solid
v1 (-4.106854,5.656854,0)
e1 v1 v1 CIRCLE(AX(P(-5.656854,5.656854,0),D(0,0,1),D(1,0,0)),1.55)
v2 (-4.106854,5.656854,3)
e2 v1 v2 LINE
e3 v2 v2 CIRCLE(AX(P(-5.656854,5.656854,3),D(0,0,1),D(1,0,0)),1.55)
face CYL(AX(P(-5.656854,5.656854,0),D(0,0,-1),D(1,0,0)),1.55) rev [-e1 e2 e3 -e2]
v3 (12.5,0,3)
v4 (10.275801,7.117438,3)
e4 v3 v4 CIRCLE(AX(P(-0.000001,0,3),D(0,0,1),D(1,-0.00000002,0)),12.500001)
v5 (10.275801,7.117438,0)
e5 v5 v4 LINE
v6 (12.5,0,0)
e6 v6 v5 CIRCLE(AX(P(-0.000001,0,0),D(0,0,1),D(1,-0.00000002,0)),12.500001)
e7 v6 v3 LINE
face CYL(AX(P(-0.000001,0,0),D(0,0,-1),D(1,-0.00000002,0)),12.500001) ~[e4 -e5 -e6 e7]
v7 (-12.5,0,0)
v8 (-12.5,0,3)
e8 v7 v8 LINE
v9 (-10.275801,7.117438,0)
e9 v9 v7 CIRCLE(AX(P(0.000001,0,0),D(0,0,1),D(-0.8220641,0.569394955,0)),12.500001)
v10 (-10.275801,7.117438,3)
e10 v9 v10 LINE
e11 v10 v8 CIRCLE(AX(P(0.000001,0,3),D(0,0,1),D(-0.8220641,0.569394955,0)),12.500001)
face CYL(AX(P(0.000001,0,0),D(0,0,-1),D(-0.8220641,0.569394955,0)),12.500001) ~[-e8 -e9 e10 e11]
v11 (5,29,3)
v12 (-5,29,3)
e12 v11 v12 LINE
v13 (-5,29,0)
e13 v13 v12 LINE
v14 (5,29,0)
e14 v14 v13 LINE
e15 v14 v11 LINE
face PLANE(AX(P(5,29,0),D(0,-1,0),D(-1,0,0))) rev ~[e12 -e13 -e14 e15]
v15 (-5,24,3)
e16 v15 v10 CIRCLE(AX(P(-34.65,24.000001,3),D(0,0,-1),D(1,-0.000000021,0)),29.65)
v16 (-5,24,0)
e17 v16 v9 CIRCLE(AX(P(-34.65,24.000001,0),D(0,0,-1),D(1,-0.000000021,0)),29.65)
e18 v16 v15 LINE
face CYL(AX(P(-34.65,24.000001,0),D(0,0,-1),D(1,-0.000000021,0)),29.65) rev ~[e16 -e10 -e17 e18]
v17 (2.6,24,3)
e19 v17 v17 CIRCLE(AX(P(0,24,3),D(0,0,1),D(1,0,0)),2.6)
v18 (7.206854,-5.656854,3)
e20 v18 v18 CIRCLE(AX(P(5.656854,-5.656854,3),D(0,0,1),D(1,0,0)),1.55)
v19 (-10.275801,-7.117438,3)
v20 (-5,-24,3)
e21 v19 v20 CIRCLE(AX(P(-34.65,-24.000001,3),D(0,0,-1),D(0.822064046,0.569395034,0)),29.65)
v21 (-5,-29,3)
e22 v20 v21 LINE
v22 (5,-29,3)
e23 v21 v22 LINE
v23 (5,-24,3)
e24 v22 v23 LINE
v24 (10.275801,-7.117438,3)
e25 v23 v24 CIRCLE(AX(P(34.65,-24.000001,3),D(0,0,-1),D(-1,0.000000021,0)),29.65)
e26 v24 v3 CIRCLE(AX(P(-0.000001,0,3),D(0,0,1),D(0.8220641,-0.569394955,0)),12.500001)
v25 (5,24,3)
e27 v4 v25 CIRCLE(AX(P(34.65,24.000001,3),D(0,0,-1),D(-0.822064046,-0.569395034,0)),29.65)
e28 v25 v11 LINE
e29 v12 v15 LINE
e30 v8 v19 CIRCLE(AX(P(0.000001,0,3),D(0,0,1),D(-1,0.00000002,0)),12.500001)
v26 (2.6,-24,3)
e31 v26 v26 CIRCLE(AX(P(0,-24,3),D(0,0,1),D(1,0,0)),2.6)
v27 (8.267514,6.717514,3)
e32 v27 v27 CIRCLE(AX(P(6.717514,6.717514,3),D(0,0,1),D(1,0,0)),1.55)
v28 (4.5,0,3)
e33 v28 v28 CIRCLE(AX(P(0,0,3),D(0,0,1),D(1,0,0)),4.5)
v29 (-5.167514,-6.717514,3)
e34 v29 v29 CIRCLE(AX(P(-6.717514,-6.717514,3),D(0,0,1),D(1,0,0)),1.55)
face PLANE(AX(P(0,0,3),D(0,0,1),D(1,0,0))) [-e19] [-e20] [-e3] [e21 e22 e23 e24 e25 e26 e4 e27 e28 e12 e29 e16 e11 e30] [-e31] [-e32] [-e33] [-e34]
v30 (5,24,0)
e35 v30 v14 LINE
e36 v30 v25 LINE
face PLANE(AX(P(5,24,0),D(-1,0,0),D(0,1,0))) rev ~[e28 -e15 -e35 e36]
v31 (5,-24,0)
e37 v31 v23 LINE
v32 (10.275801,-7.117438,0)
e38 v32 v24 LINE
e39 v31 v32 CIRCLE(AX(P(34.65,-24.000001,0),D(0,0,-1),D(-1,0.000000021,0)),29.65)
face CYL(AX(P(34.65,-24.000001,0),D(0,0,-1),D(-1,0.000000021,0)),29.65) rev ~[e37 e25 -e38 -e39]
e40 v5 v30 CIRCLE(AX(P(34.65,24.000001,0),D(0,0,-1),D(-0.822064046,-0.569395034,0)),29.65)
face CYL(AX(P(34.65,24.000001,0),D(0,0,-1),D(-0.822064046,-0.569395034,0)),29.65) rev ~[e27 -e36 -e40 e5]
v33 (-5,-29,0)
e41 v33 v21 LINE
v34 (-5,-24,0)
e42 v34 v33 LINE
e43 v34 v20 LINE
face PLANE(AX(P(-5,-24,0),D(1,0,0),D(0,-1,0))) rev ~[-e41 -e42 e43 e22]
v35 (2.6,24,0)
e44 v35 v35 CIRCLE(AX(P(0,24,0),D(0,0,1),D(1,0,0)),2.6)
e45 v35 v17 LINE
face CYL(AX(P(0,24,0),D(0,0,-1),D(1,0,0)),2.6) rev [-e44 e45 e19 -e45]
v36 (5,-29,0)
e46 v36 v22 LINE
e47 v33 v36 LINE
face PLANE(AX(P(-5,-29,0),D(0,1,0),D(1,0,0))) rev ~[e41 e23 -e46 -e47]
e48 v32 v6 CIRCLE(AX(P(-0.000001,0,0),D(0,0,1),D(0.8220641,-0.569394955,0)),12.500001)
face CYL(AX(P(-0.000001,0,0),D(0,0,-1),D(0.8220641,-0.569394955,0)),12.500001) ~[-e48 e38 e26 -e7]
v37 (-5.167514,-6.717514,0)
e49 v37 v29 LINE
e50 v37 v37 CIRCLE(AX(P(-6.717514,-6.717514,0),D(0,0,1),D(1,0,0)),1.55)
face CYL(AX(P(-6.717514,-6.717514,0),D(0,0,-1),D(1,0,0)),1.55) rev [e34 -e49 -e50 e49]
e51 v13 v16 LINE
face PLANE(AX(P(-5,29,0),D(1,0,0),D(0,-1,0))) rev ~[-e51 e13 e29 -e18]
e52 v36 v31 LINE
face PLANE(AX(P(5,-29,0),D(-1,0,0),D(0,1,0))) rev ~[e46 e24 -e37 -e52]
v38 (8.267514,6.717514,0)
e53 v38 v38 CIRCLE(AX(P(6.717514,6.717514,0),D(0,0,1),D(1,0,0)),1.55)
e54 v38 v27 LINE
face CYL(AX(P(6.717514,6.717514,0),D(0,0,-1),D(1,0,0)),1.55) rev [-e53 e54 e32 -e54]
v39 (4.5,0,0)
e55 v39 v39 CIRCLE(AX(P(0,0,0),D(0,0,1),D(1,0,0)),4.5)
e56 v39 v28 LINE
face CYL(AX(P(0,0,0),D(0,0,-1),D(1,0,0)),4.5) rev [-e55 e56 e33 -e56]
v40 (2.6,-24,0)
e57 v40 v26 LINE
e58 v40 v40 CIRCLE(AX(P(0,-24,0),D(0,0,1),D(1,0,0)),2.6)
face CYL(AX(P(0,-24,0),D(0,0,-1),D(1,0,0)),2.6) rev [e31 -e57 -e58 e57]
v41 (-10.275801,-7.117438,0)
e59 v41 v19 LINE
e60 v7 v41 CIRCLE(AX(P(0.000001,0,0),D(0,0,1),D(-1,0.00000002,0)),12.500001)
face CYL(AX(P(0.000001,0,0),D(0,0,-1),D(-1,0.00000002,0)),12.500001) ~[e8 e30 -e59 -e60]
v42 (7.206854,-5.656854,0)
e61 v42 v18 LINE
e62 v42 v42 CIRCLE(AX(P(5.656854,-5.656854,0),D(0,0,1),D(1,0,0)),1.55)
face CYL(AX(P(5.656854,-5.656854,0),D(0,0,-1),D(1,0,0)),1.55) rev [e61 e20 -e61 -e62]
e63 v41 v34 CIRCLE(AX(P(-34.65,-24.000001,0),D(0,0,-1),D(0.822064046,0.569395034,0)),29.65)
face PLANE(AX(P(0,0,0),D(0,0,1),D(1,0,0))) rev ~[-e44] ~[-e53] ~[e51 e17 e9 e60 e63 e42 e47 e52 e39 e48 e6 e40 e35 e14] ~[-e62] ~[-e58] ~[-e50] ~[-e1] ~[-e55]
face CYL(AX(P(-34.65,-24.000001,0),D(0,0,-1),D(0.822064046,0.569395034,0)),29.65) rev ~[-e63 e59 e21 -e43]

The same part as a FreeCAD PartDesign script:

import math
import FreeCAD as App
import Part
import Sketcher

doc = App.newDocument("Part")
body = doc.addObject("PartDesign::Body", "Body")

# Sketch on XY plane
sketch1 = body.newObject("Sketcher::SketchObject", "Sketch")
sketch1.AttachmentSupport = (doc.getObject("XY_Plane"), [""])
sketch1.MapMode = "FlatFace"
sketch1.addGeometry(Part.ArcOfCircle(Part.Circle(App.Vector(-34.6, 24, 0), App.Vector(0, 0, 1), 29.6), math.radians(-35), math.radians(0)), False)
sketch1.addGeometry(Part.ArcOfCircle(Part.Circle(App.Vector(0, 0, 0), App.Vector(0, 0, 1), 12.5), math.radians(145), math.radians(180)), False)
sketch1.addGeometry(Part.ArcOfCircle(Part.Circle(App.Vector(0, 0, 0), App.Vector(0, 0, 1), 12.5), math.radians(180), math.radians(215)), False)
sketch1.addGeometry(Part.ArcOfCircle(Part.Circle(App.Vector(-34.6, -24, 0), App.Vector(0, 0, 1), 29.6), math.radians(0), math.radians(35)), False)
sketch1.addGeometry(Part.LineSegment(App.Vector(-5, -24, 0), App.Vector(-5, -29, 0)), False)
sketch1.addGeometry(Part.LineSegment(App.Vector(-5, -29, 0), App.Vector(5, -29, 0)), False)
sketch1.addGeometry(Part.LineSegment(App.Vector(5, -29, 0), App.Vector(5, -24, 0)), False)
sketch1.addGeometry(Part.ArcOfCircle(Part.Circle(App.Vector(34.6, -24, 0), App.Vector(0, 0, 1), 29.6), math.radians(145), math.radians(180)), False)
sketch1.addGeometry(Part.ArcOfCircle(Part.Circle(App.Vector(0, 0, 0), App.Vector(0, 0, 1), 12.5), math.radians(-35), math.radians(0)), False)
sketch1.addGeometry(Part.ArcOfCircle(Part.Circle(App.Vector(0, 0, 0), App.Vector(0, 0, 1), 12.5), math.radians(0), math.radians(35)), False)
sketch1.addGeometry(Part.ArcOfCircle(Part.Circle(App.Vector(34.6, 24, 0), App.Vector(0, 0, 1), 29.6), math.radians(-180), math.radians(-145)), False)
sketch1.addGeometry(Part.LineSegment(App.Vector(5, 24, 0), App.Vector(5, 29, 0)), False)
sketch1.addGeometry(Part.LineSegment(App.Vector(5, 29, 0), App.Vector(-5, 29, 0)), False)
sketch1.addGeometry(Part.LineSegment(App.Vector(-5, 29, 0), App.Vector(-5, 24, 0)), False)
sketch1.addGeometry(Part.Circle(App.Vector(-6.7, -6.7, 0), App.Vector(0, 0, 1), 1.6), False)
sketch1.addGeometry(Part.Circle(App.Vector(0, -24, 0), App.Vector(0, 0, 1), 2.6), False)
sketch1.addGeometry(Part.Circle(App.Vector(5.7, -5.7, 0), App.Vector(0, 0, 1), 1.6), False)
sketch1.addGeometry(Part.Circle(App.Vector(-5.7, 5.7, 0), App.Vector(0, 0, 1), 1.6), False)
sketch1.addGeometry(Part.Circle(App.Vector(0, 0, 0), App.Vector(0, 0, 1), 4.5), False)
sketch1.addGeometry(Part.Circle(App.Vector(6.7, 6.7, 0), App.Vector(0, 0, 1), 1.6), False)
sketch1.addGeometry(Part.Circle(App.Vector(0, 24, 0), App.Vector(0, 0, 1), 2.6), False)
sketch1.addConstraint(Sketcher.Constraint("Tangent", 0, 1, 1, 1))
sketch1.addConstraint(Sketcher.Constraint("Tangent", 1, 2, 2, 1))
sketch1.addConstraint(Sketcher.Constraint("Tangent", 2, 2, 3, 2))
sketch1.addConstraint(Sketcher.Constraint("Tangent", 3, 1, 4, 1))
sketch1.addConstraint(Sketcher.Constraint("Coincident", 4, 2, 5, 1))
sketch1.addConstraint(Sketcher.Constraint("Coincident", 5, 2, 6, 1))
sketch1.addConstraint(Sketcher.Constraint("Tangent", 6, 2, 7, 2))
sketch1.addConstraint(Sketcher.Constraint("Tangent", 7, 1, 8, 1))
sketch1.addConstraint(Sketcher.Constraint("Tangent", 8, 2, 9, 1))
sketch1.addConstraint(Sketcher.Constraint("Tangent", 9, 2, 10, 2))
sketch1.addConstraint(Sketcher.Constraint("Tangent", 10, 1, 11, 1))
sketch1.addConstraint(Sketcher.Constraint("Coincident", 11, 2, 12, 1))
sketch1.addConstraint(Sketcher.Constraint("Coincident", 12, 2, 13, 1))
sketch1.addConstraint(Sketcher.Constraint("Tangent", 13, 2, 0, 2))
sketch1.addConstraint(Sketcher.Constraint("Vertical", 4))
sketch1.addConstraint(Sketcher.Constraint("Horizontal", 5))
sketch1.addConstraint(Sketcher.Constraint("Vertical", 6))
sketch1.addConstraint(Sketcher.Constraint("Vertical", 11))
sketch1.addConstraint(Sketcher.Constraint("Horizontal", 12))
sketch1.addConstraint(Sketcher.Constraint("Vertical", 13))
sketch1.addConstraint(Sketcher.Constraint("Coincident", 1, 3, -1, 1))
sketch1.addConstraint(Sketcher.Constraint("Coincident", 8, 3, -1, 1))
sketch1.addConstraint(Sketcher.Constraint("Coincident", 18, 3, -1, 1))
sketch1.addConstraint(Sketcher.Constraint("Equal", 1, 2))
sketch1.addConstraint(Sketcher.Constraint("Equal", 0, 3))
sketch1.addConstraint(Sketcher.Constraint("Equal", 3, 7))
sketch1.addConstraint(Sketcher.Constraint("Equal", 2, 8))
sketch1.addConstraint(Sketcher.Constraint("Equal", 8, 9))
sketch1.addConstraint(Sketcher.Constraint("Equal", 7, 10))
sketch1.addConstraint(Sketcher.Constraint("Equal", 14, 16))
sketch1.addConstraint(Sketcher.Constraint("Equal", 16, 17))
sketch1.addConstraint(Sketcher.Constraint("Equal", 17, 19))
sketch1.addConstraint(Sketcher.Constraint("Equal", 15, 20))
sketch1.addConstraint(Sketcher.Constraint("Symmetric", 16, 3, 17, 3, -1, 1))
sketch1.addConstraint(Sketcher.Constraint("Symmetric", 14, 3, 19, 3, -1, 1))
sketch1.addConstraint(Sketcher.Constraint("Symmetric", 15, 3, 20, 3, -1, 1))
sketch1.addConstraint(Sketcher.Constraint("Symmetric", 4, 2, 11, 2, -1, 1))
sketch1.addConstraint(Sketcher.Constraint("PointOnObject", 15, 3, -2))
sketch1.addConstraint(Sketcher.Constraint("PointOnObject", 1, 2, -1))
sketch1.addConstraint(Sketcher.Constraint("PointOnObject", 8, 2, -1))
sketch1.addConstraint(Sketcher.Constraint("Horizontal", 3, 3, 7, 3))
sketch1.addConstraint(Sketcher.Constraint("Horizontal", 0, 3, 10, 3))
sketch1.addConstraint(Sketcher.Constraint("Horizontal", 7, 3, 15, 3))
sketch1.addConstraint(Sketcher.Constraint("Diameter", 18, 9.0))
sketch1.addConstraint(Sketcher.Constraint("Diameter", 14, 3.1))
sketch1.addConstraint(Sketcher.Constraint("Diameter", 15, 5.2))
sketch1.addConstraint(Sketcher.Constraint("Radius", 1, 12.500001))
sketch1.addConstraint(Sketcher.Constraint("DistanceX", 5, 1, 5, 2, 10.0))
sketch1.addConstraint(Sketcher.Constraint("DistanceY", 4, 2, 4, 1, 5.0))
sketch1.addConstraint(Sketcher.Constraint("Radius", 0, 29.65))
sketch1.addConstraint(Sketcher.Constraint("DistanceY", 14, 3, 16, 3, 1.06066))
sketch1.addConstraint(Sketcher.Constraint("DistanceX", 14, 3, 17, 3, 1.06066))
sketch1.addConstraint(Sketcher.Constraint("DistanceX", 14, 3, -1, 1, 6.717514))
sketch1.addConstraint(Sketcher.Constraint("DistanceY", 14, 3, -1, 1, 6.717514))
pad1 = body.newObject("PartDesign::Pad", "Pad")
pad1.Profile = sketch1
pad1.Length = 3

doc.recompute()
